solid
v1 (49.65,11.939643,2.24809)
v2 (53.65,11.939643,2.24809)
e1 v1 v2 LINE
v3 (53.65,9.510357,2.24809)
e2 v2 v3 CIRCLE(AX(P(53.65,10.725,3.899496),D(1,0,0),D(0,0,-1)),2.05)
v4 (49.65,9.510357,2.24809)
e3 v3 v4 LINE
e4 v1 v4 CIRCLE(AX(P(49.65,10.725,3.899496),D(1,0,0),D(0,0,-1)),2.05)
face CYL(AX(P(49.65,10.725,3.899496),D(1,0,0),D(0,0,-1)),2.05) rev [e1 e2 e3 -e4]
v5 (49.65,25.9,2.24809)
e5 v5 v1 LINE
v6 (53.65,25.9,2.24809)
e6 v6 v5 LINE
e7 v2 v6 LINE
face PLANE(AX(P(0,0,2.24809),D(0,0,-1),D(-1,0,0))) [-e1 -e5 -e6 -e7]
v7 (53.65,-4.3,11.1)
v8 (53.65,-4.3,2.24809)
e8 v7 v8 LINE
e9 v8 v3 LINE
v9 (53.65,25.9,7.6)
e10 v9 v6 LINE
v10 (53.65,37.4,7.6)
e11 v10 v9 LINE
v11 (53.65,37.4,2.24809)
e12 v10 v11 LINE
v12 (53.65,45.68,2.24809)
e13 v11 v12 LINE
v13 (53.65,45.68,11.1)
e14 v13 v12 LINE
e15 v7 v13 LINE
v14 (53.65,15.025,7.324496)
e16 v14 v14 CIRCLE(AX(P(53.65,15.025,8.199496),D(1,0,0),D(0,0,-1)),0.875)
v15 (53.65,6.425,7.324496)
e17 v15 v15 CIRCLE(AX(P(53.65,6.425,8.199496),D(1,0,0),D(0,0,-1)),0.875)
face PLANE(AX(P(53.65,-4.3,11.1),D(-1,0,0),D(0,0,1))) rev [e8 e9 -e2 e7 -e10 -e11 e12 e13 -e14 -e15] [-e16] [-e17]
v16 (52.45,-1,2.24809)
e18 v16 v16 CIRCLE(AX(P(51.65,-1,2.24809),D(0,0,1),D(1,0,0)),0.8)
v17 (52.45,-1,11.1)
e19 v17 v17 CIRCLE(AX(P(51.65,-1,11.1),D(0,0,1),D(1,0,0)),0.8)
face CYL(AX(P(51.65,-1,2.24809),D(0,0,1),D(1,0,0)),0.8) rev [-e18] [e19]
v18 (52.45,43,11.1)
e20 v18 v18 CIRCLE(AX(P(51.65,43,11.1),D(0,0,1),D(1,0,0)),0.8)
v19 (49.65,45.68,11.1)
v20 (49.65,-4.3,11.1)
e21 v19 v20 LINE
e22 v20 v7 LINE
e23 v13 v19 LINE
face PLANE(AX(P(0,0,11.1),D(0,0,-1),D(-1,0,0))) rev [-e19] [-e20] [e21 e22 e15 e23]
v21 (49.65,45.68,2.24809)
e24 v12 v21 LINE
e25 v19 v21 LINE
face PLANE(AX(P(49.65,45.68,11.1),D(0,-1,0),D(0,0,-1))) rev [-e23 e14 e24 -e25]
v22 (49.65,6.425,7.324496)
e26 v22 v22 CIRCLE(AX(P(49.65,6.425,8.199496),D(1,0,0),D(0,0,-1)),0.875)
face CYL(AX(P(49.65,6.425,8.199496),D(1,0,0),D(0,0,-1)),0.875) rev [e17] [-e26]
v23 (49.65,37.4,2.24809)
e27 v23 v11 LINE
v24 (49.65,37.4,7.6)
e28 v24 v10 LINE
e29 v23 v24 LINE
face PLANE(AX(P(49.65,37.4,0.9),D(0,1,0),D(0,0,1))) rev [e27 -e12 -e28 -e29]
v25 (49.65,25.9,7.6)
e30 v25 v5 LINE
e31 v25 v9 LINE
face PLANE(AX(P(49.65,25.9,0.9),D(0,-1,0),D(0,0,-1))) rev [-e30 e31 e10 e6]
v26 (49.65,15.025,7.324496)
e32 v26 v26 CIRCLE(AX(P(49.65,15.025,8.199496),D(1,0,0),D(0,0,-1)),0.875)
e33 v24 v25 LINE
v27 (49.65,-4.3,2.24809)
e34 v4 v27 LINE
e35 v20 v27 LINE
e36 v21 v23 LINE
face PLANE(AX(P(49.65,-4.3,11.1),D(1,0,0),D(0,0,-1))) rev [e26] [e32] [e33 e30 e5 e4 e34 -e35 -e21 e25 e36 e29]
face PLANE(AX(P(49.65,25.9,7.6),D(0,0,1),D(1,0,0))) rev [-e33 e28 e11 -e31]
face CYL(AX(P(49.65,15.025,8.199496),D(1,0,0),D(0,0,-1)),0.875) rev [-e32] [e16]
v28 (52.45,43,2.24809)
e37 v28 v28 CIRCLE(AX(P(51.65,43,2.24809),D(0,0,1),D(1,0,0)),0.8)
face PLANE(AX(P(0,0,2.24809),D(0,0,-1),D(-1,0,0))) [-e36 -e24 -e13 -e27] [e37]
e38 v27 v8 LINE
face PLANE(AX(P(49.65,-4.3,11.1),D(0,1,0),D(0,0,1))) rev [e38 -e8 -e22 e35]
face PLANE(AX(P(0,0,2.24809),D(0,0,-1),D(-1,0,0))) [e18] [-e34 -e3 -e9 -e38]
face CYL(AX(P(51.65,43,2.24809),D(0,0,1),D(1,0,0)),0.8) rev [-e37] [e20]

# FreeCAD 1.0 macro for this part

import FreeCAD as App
import Part
import Sketcher

V = App.Vector


def add_polygon(sketch, points):
    """Adds a closed chain of lines whose ends are joined by coincident constraints."""
    first, n = sketch.GeometryCount, len(points)
    for a, b in zip(points, points[1:] + points[:1]):
        sketch.addGeometry(Part.LineSegment(App.Vector(*a, 0), App.Vector(*b, 0)), False)
    for i in range(n):
        sketch.addConstraint(Sketcher.Constraint("Coincident", first + i, 2, first + (i + 1) % n, 1))

doc = App.newDocument("Part")
body = doc.addObject("PartDesign::Body", "Body")

# Sketch on XY plane
sketch1 = body.newObject("Sketcher::SketchObject", "Sketch")
sketch1.AttachmentSupport = (doc.getObject("XY_Plane"), [""])
sketch1.MapMode = "FlatFace"
add_polygon(sketch1, [(49.65, 45.68), (49.65, -4.3), (53.65, -4.3), (53.65, 45.68)])  # lines 0-3
sketch1.addConstraint([
    Sketcher.Constraint("Vertical", 0),
    Sketcher.Constraint("Horizontal", 1),
    Sketcher.Constraint("Vertical", 2),
    Sketcher.Constraint("Horizontal", 3),
    Sketcher.Constraint("DistanceX", 1, 1, 1, 2, 4.0),
    Sketcher.Constraint("DistanceY", 0, 2, 0, 1, 49.98),
    Sketcher.Constraint("DistanceY", 0, 2, -1, 1, 4.3),
    Sketcher.Constraint("DistanceX", -1, 1, 0, 2, 49.65),
])
pad1 = body.newObject("PartDesign::Pad", "Pad")
pad1.Profile = sketch1
pad1.Length = 8.85191
body2 = doc.addObject("PartDesign::Body", "Body001")
doc.recompute()

body.Placement = App.Placement(V(0, 0, 2.24809), App.Rotation(V(0, 0, 1), 0))
boolean = body2.newObject("PartDesign::Boolean", "Boolean")
boolean.Type = "Fuse"
boolean.addObjects([body])

# Sketch on XY plane
sketch2 = body2.newObject("Sketcher::SketchObject", "Sketch001")
sketch2.AttachmentSupport = (doc.getObject("XY_Plane001"), [""])
sketch2.MapMode = "FlatFace"
sketch2.AttachmentOffset = App.Placement(V(0, 0, 11.1), App.Rotation())
sketch2.addGeometry([
    Part.Circle(V(51.65, -1, 0), V(0, 0, 1), 0.8),
    Part.Circle(V(51.65, 43, 0), V(0, 0, 1), 0.8),
], False)
sketch2.addConstraint([
    Sketcher.Constraint("Equal", 0, 1),
    Sketcher.Constraint("Vertical", 0, 3, 1, 3),
    Sketcher.Constraint("Diameter", 0, 1.6),
    Sketcher.Constraint("DistanceY", 0, 3, -1, 1, 1.0),
    Sketcher.Constraint("DistanceY", -1, 1, 1, 3, 43.0),
    Sketcher.Constraint("DistanceX", -1, 1, 0, 3, 51.65),
])
pocket1 = body2.newObject("PartDesign::Pocket", "Pocket")
pocket1.Profile = sketch2
pocket1.Type = "ThroughAll"

# Sketch on YZ plane
sketch3 = body2.newObject("Sketcher::SketchObject", "Sketch002")
sketch3.AttachmentSupport = (doc.getObject("YZ_Plane001"), [""])
sketch3.MapMode = "FlatFace"
sketch3.AttachmentOffset = App.Placement(V(0, 0, 53.65), App.Rotation())
sketch3.addGeometry(Part.Circle(V(10.725, 3.899496, 0), V(0, 0, 1), 2.05), False)
sketch3.addConstraint([
    Sketcher.Constraint("Diameter", 0, 4.1),
    Sketcher.Constraint("DistanceX", -1, 1, 0, 3, 10.725),
    Sketcher.Constraint("DistanceY", -1, 1, 0, 3, 3.899496),
])
pocket2 = body2.newObject("PartDesign::Pocket", "Pocket001")
pocket2.Profile = sketch3
pocket2.Length = 4

# Sketch on YZ plane
sketch4 = body2.newObject("Sketcher::SketchObject", "Sketch003")
sketch4.AttachmentSupport = (doc.getObject("YZ_Plane001"), [""])
sketch4.MapMode = "FlatFace"
sketch4.AttachmentOffset = App.Placement(V(0, 0, 53.65), App.Rotation())
sketch4.addGeometry([
    Part.Circle(V(6.425, 8.199496, 0), V(0, 0, 1), 0.875),
    Part.Circle(V(15.025, 8.199496, 0), V(0, 0, 1), 0.875),
], False)
sketch4.addConstraint([
    Sketcher.Constraint("Equal", 0, 1),
    Sketcher.Constraint("Horizontal", 0, 3, 1, 3),
    Sketcher.Constraint("Diameter", 0, 1.75),
    Sketcher.Constraint("DistanceX", 0, 3, 1, 3, 8.6),
    Sketcher.Constraint("DistanceX", -1, 1, 0, 3, 6.425),
    Sketcher.Constraint("DistanceY", -1, 1, 0, 3, 8.199496),
])
pocket3 = body2.newObject("PartDesign::Pocket", "Pocket002")
pocket3.Profile = sketch4
pocket3.Type = "ThroughAll"

# Sketch on YZ plane
sketch5 = body2.newObject("Sketcher::SketchObject", "Sketch004")
sketch5.AttachmentSupport = (doc.getObject("YZ_Plane001"), [""])
sketch5.MapMode = "FlatFace"
sketch5.AttachmentOffset = App.Placement(V(0, 0, 53.65), App.Rotation())
add_polygon(sketch5, [(37.4, 7.6), (25.9, 7.6), (25.9, 0.9), (37.4, 0.9)])  # lines 0-3
sketch5.addConstraint([
    Sketcher.Constraint("Horizontal", 0),
    Sketcher.Constraint("Vertical", 1),
    Sketcher.Constraint("Horizontal", 2),
    Sketcher.Constraint("Vertical", 3),
    Sketcher.Constraint("DistanceX", 0, 2, 0, 1, 11.5),
    Sketcher.Constraint("DistanceY", 1, 2, 1, 1, 6.7),
    Sketcher.Constraint("DistanceX", -1, 1, 0, 2, 25.9),
    Sketcher.Constraint("DistanceY", -1, 1, 0, 2, 7.6),
])
pocket4 = body2.newObject("PartDesign::Pocket", "Pocket003")
pocket4.Profile = sketch5
pocket4.Length = 4

doc.recompute()
